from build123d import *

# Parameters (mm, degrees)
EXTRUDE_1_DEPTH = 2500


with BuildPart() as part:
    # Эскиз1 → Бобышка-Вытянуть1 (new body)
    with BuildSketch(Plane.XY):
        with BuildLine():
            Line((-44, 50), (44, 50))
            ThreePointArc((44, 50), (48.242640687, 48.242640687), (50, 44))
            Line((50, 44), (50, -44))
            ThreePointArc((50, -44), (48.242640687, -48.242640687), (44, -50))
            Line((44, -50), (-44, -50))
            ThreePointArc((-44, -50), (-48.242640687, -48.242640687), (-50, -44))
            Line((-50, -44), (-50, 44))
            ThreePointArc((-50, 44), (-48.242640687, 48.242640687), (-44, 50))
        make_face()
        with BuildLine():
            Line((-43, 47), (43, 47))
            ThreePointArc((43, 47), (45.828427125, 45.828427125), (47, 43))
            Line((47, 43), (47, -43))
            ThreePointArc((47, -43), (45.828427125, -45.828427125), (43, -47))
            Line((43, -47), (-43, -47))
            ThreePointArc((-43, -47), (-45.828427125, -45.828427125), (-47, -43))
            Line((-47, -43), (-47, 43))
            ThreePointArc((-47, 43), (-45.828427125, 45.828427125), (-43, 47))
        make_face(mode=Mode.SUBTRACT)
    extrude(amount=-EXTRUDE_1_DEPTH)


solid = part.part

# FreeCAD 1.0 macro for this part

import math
import FreeCAD as App
import Part
import Sketcher
from FreeCAD import Vector

doc = App.newDocument("Part")
body = doc.addObject("PartDesign::Body", "Body")

# Sketch on XY plane
sketch1 = body.newObject("Sketcher::SketchObject", "Sketch")
sketch1.AttachmentSupport = (doc.getObject("XY_Plane"), [""])
sketch1.MapMode = "FlatFace"
sketch1.addGeometry([
    Part.LineSegment(Vector(44, 50, 0), Vector(-44, 50, 0)),  # 0
    Part.ArcOfCircle(Part.Circle(Vector(-44, 44, 0), Vector(0, 0, 1), 6), math.radians(90), math.radians(180)),  # 1
    Part.LineSegment(Vector(-50, 44, 0), Vector(-50, -44, 0)),  # 2
    Part.ArcOfCircle(Part.Circle(Vector(-44, -44, 0), Vector(0, 0, 1), 6), math.radians(180), math.radians(270)),  # 3
    Part.LineSegment(Vector(-44, -50, 0), Vector(44, -50, 0)),  # 4
    Part.ArcOfCircle(Part.Circle(Vector(44, -44, 0), Vector(0, 0, 1), 6), math.radians(-90), math.radians(0)),  # 5
    Part.LineSegment(Vector(50, -44, 0), Vector(50, 44, 0)),  # 6
    Part.ArcOfCircle(Part.Circle(Vector(44, 44, 0), Vector(0, 0, 1), 6), math.radians(0), math.radians(90)),  # 7
    Part.LineSegment(Vector(-43, 47, 0), Vector(43, 47, 0)),  # 8
    Part.ArcOfCircle(Part.Circle(Vector(43, 43, 0), Vector(0, 0, 1), 4), math.radians(0), math.radians(90)),  # 9
    Part.LineSegment(Vector(47, 43, 0), Vector(47, -43, 0)),  # 10
    Part.ArcOfCircle(Part.Circle(Vector(43, -43, 0), Vector(0, 0, 1), 4), math.radians(-90), math.radians(0)),  # 11
    Part.LineSegment(Vector(43, -47, 0), Vector(-43, -47, 0)),  # 12
    Part.ArcOfCircle(Part.Circle(Vector(-43, -43, 0), Vector(0, 0, 1), 4), math.radians(180), math.radians(270)),  # 13
    Part.LineSegment(Vector(-47, -43, 0), Vector(-47, 43, 0)),  # 14
    Part.ArcOfCircle(Part.Circle(Vector(-43, 43, 0), Vector(0, 0, 1), 4), math.radians(90), math.radians(180)),  # 15
], False)
sketch1.addConstraint([
    Sketcher.Constraint("Tangent", 0, 2, 1, 1),
    Sketcher.Constraint("Tangent", 1, 2, 2, 1),
    Sketcher.Constraint("Tangent", 2, 2, 3, 1),
    Sketcher.Constraint("Tangent", 3, 2, 4, 1),
    Sketcher.Constraint("Tangent", 4, 2, 5, 1),
    Sketcher.Constraint("Tangent", 5, 2, 6, 1),
    Sketcher.Constraint("Tangent", 6, 2, 7, 1),
    Sketcher.Constraint("Tangent", 7, 2, 0, 1),
    Sketcher.Constraint("Tangent", 8, 2, 9, 2),
    Sketcher.Constraint("Tangent", 9, 1, 10, 1),
    Sketcher.Constraint("Tangent", 10, 2, 11, 2),
    Sketcher.Constraint("Tangent", 11, 1, 12, 1),
    Sketcher.Constraint("Tangent", 12, 2, 13, 2),
    Sketcher.Constraint("Tangent", 13, 1, 14, 1),
    Sketcher.Constraint("Tangent", 14, 2, 15, 2),
    Sketcher.Constraint("Tangent", 15, 1, 8, 1),
    Sketcher.Constraint("Horizontal", 0),
    Sketcher.Constraint("Vertical", 2),
    Sketcher.Constraint("Horizontal", 4),
    Sketcher.Constraint("Vertical", 6),
    Sketcher.Constraint("Horizontal", 8),
    Sketcher.Constraint("Vertical", 10),
    Sketcher.Constraint("Horizontal", 12),
    Sketcher.Constraint("Vertical", 14),
    Sketcher.Constraint("Equal", 1, 3),
    Sketcher.Constraint("Equal", 3, 5),
    Sketcher.Constraint("Equal", 5, 7),
    Sketcher.Constraint("Equal", 9, 11),
    Sketcher.Constraint("Equal", 11, 13),
    Sketcher.Constraint("Equal", 13, 15),
    Sketcher.Constraint("Symmetric", 1, 3, 5, 3, -1, 1),
    Sketcher.Constraint("Symmetric", 9, 3, 13, 3, -1, 1),
    Sketcher.Constraint("Equal", 4, 2),
    Sketcher.Constraint("Equal", 12, 10),
    Sketcher.Constraint("Radius", 1, 6.0),
    Sketcher.Constraint("Radius", 9, 4.0),
    Sketcher.Constraint("DistanceX", 0, 2, 0, 1, 88.0),
    Sketcher.Constraint("DistanceX", 8, 1, 8, 2, 86.0),
])
pad1 = body.newObject("PartDesign::Pad", "Pad")
pad1.Profile = sketch1
pad1.Length = 2500
pad1.Reversed = True

doc.recompute()
